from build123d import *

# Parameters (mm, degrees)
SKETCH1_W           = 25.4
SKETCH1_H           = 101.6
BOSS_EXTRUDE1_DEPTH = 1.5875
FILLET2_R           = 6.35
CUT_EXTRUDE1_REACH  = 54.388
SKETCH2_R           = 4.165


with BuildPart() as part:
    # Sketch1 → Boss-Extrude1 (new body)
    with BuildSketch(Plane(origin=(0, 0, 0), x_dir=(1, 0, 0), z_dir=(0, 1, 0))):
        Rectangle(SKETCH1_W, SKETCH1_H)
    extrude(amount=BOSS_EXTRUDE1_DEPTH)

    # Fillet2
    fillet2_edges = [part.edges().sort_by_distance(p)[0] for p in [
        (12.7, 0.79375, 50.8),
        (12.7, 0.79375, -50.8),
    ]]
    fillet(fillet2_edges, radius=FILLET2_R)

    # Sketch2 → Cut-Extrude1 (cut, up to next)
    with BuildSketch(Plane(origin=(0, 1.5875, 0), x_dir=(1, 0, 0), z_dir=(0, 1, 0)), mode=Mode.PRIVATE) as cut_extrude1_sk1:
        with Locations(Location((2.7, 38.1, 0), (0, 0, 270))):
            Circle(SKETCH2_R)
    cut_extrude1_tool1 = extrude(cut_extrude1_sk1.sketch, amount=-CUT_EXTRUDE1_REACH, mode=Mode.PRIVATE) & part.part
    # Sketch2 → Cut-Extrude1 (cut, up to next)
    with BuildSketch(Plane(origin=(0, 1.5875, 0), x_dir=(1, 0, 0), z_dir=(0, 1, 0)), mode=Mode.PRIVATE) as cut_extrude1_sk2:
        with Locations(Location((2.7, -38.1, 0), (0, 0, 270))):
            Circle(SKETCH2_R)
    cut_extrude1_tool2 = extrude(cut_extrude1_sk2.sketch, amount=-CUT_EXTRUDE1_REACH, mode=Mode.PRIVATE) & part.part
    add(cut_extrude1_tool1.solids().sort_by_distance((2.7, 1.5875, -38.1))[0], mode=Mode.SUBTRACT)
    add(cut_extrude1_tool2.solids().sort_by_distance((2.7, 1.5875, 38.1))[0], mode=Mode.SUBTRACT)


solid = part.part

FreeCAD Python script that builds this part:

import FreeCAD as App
import Part
import Sketcher
Q = App.Units.Quantity


def edges_at(feature, points):
    """Names of the edges that pass closest to the given points."""
    edges = feature.Shape.Edges
    near = lambda p: min(range(len(edges)), key=lambda i: edges[i].distToShape(Part.Vertex(*p))[0])
    return sorted({f"Edge{near(p) + 1}" for p in points})

doc = App.newDocument("Part")
params = doc.addObject("Spreadsheet::Sheet", "Params")
for row, (alias, value) in enumerate([
    ("sketch1_width", "1 in"),
    ("sketch1_height", "4 in"),
    ("pad1_length", "0.0625 in"),
    ("fillet_radius", "0.25 in"),
], start=1):
    params.set(f"A{row}", alias)
    params.set(f"B{row}", "=" + value)
    params.setAlias(f"B{row}", alias)

body = doc.addObject("PartDesign::Body", "Body")

# Sketch on XZ plane
sketch1 = body.newObject("Sketcher::SketchObject", "Sketch")
sketch1.AttachmentSupport = (doc.getObject("XZ_Plane"), [""])
sketch1.MapMode = "FlatFace"
sketch1.addGeometry([
    Part.LineSegment(App.Vector(-13, -51, 0), App.Vector(-13, 51, 0)),
    Part.LineSegment(App.Vector(-13, 51, 0), App.Vector(13, 51, 0)),
    Part.LineSegment(App.Vector(13, 51, 0), App.Vector(13, -51, 0)),
    Part.LineSegment(App.Vector(13, -51, 0), App.Vector(-13, -51, 0)),
], False)
sketch1.addConstraint([
    Sketcher.Constraint("Coincident", 0, 2, 1, 1),
    Sketcher.Constraint("Coincident", 1, 2, 2, 1),
    Sketcher.Constraint("Coincident", 2, 2, 3, 1),
    Sketcher.Constraint("Coincident", 3, 2, 0, 1),
    Sketcher.Constraint("Vertical", 0),
    Sketcher.Constraint("Horizontal", 1),
    Sketcher.Constraint("Vertical", 2),
    Sketcher.Constraint("Horizontal", 3),
    Sketcher.Constraint("Symmetric", 0, 2, 2, 2, -1, 1),
    Sketcher.Constraint("DistanceX", 1, 1, 1, 2, Q("1 in")),
    Sketcher.Constraint("DistanceY", 0, 1, 0, 2, Q("4 in")),
])
sketch1.setExpression("Constraints[9]", "Params.sketch1_width")
sketch1.setExpression("Constraints[10]", "Params.sketch1_height")
pad1 = body.newObject("PartDesign::Pad", "Pad")
pad1.Profile = sketch1
pad1.setExpression("Length", "Params.pad1_length")
pad1.Reversed = True
doc.recompute()

fillet = body.newObject("PartDesign::Fillet", "Fillet")
fillet.Base = (pad1, edges_at(pad1, [(12.7, 0.794, 50.8), (12.7, 0.794, -50.8)]))
fillet.setExpression("Radius", "Params.fillet_radius")

# Sketch on XZ plane
sketch2 = body.newObject("Sketcher::SketchObject", "Sketch001")
sketch2.AttachmentSupport = (doc.getObject("XZ_Plane"), [""])
sketch2.MapMode = "FlatFace"
sketch2.AttachmentOffset = App.Placement(App.Vector(0, 0, -0.0625 * 25.4), App.Rotation())
sketch2.addGeometry(Part.Circle(App.Vector(2.7, -38.1, 0), App.Vector(0, 0, 1), 4.2), False)
sketch2.addConstraint([
    Sketcher.Constraint("DistanceY", 0, 3, -1, 1, Q("1.5 in")),
    Sketcher.Constraint("Diameter", 0, Q("8.33 mm")),
    Sketcher.Constraint("DistanceX", -1, 1, 0, 3, Q("2.7 mm")),
])
pocket1 = body.newObject("PartDesign::Pocket", "Pocket")
pocket1.Profile = sketch2
pocket1.Type = "UpToFirst"
pocket1.Reversed = True

# Sketch on XZ plane
sketch3 = body.newObject("Sketcher::SketchObject", "Sketch002")
sketch3.AttachmentSupport = (doc.getObject("XZ_Plane"), [""])
sketch3.MapMode = "FlatFace"
sketch3.AttachmentOffset = App.Placement(App.Vector(0, 0, -0.0625 * 25.4), App.Rotation())
sketch3.addGeometry(Part.Circle(App.Vector(2.7, 38.1, 0), App.Vector(0, 0, 1), 4.2), False)
sketch3.addConstraint([
    Sketcher.Constraint("DistanceY", -1, 1, 0, 3, Q("1.5 in")),
    Sketcher.Constraint("Diameter", 0, Q("8.33 mm")),
    Sketcher.Constraint("DistanceX", -1, 1, 0, 3, Q("2.7 mm")),
])
pocket2 = body.newObject("PartDesign::Pocket", "Pocket001")
pocket2.Profile = sketch3
pocket2.Type = "UpToFirst"
pocket2.Reversed = True

doc.recompute()
